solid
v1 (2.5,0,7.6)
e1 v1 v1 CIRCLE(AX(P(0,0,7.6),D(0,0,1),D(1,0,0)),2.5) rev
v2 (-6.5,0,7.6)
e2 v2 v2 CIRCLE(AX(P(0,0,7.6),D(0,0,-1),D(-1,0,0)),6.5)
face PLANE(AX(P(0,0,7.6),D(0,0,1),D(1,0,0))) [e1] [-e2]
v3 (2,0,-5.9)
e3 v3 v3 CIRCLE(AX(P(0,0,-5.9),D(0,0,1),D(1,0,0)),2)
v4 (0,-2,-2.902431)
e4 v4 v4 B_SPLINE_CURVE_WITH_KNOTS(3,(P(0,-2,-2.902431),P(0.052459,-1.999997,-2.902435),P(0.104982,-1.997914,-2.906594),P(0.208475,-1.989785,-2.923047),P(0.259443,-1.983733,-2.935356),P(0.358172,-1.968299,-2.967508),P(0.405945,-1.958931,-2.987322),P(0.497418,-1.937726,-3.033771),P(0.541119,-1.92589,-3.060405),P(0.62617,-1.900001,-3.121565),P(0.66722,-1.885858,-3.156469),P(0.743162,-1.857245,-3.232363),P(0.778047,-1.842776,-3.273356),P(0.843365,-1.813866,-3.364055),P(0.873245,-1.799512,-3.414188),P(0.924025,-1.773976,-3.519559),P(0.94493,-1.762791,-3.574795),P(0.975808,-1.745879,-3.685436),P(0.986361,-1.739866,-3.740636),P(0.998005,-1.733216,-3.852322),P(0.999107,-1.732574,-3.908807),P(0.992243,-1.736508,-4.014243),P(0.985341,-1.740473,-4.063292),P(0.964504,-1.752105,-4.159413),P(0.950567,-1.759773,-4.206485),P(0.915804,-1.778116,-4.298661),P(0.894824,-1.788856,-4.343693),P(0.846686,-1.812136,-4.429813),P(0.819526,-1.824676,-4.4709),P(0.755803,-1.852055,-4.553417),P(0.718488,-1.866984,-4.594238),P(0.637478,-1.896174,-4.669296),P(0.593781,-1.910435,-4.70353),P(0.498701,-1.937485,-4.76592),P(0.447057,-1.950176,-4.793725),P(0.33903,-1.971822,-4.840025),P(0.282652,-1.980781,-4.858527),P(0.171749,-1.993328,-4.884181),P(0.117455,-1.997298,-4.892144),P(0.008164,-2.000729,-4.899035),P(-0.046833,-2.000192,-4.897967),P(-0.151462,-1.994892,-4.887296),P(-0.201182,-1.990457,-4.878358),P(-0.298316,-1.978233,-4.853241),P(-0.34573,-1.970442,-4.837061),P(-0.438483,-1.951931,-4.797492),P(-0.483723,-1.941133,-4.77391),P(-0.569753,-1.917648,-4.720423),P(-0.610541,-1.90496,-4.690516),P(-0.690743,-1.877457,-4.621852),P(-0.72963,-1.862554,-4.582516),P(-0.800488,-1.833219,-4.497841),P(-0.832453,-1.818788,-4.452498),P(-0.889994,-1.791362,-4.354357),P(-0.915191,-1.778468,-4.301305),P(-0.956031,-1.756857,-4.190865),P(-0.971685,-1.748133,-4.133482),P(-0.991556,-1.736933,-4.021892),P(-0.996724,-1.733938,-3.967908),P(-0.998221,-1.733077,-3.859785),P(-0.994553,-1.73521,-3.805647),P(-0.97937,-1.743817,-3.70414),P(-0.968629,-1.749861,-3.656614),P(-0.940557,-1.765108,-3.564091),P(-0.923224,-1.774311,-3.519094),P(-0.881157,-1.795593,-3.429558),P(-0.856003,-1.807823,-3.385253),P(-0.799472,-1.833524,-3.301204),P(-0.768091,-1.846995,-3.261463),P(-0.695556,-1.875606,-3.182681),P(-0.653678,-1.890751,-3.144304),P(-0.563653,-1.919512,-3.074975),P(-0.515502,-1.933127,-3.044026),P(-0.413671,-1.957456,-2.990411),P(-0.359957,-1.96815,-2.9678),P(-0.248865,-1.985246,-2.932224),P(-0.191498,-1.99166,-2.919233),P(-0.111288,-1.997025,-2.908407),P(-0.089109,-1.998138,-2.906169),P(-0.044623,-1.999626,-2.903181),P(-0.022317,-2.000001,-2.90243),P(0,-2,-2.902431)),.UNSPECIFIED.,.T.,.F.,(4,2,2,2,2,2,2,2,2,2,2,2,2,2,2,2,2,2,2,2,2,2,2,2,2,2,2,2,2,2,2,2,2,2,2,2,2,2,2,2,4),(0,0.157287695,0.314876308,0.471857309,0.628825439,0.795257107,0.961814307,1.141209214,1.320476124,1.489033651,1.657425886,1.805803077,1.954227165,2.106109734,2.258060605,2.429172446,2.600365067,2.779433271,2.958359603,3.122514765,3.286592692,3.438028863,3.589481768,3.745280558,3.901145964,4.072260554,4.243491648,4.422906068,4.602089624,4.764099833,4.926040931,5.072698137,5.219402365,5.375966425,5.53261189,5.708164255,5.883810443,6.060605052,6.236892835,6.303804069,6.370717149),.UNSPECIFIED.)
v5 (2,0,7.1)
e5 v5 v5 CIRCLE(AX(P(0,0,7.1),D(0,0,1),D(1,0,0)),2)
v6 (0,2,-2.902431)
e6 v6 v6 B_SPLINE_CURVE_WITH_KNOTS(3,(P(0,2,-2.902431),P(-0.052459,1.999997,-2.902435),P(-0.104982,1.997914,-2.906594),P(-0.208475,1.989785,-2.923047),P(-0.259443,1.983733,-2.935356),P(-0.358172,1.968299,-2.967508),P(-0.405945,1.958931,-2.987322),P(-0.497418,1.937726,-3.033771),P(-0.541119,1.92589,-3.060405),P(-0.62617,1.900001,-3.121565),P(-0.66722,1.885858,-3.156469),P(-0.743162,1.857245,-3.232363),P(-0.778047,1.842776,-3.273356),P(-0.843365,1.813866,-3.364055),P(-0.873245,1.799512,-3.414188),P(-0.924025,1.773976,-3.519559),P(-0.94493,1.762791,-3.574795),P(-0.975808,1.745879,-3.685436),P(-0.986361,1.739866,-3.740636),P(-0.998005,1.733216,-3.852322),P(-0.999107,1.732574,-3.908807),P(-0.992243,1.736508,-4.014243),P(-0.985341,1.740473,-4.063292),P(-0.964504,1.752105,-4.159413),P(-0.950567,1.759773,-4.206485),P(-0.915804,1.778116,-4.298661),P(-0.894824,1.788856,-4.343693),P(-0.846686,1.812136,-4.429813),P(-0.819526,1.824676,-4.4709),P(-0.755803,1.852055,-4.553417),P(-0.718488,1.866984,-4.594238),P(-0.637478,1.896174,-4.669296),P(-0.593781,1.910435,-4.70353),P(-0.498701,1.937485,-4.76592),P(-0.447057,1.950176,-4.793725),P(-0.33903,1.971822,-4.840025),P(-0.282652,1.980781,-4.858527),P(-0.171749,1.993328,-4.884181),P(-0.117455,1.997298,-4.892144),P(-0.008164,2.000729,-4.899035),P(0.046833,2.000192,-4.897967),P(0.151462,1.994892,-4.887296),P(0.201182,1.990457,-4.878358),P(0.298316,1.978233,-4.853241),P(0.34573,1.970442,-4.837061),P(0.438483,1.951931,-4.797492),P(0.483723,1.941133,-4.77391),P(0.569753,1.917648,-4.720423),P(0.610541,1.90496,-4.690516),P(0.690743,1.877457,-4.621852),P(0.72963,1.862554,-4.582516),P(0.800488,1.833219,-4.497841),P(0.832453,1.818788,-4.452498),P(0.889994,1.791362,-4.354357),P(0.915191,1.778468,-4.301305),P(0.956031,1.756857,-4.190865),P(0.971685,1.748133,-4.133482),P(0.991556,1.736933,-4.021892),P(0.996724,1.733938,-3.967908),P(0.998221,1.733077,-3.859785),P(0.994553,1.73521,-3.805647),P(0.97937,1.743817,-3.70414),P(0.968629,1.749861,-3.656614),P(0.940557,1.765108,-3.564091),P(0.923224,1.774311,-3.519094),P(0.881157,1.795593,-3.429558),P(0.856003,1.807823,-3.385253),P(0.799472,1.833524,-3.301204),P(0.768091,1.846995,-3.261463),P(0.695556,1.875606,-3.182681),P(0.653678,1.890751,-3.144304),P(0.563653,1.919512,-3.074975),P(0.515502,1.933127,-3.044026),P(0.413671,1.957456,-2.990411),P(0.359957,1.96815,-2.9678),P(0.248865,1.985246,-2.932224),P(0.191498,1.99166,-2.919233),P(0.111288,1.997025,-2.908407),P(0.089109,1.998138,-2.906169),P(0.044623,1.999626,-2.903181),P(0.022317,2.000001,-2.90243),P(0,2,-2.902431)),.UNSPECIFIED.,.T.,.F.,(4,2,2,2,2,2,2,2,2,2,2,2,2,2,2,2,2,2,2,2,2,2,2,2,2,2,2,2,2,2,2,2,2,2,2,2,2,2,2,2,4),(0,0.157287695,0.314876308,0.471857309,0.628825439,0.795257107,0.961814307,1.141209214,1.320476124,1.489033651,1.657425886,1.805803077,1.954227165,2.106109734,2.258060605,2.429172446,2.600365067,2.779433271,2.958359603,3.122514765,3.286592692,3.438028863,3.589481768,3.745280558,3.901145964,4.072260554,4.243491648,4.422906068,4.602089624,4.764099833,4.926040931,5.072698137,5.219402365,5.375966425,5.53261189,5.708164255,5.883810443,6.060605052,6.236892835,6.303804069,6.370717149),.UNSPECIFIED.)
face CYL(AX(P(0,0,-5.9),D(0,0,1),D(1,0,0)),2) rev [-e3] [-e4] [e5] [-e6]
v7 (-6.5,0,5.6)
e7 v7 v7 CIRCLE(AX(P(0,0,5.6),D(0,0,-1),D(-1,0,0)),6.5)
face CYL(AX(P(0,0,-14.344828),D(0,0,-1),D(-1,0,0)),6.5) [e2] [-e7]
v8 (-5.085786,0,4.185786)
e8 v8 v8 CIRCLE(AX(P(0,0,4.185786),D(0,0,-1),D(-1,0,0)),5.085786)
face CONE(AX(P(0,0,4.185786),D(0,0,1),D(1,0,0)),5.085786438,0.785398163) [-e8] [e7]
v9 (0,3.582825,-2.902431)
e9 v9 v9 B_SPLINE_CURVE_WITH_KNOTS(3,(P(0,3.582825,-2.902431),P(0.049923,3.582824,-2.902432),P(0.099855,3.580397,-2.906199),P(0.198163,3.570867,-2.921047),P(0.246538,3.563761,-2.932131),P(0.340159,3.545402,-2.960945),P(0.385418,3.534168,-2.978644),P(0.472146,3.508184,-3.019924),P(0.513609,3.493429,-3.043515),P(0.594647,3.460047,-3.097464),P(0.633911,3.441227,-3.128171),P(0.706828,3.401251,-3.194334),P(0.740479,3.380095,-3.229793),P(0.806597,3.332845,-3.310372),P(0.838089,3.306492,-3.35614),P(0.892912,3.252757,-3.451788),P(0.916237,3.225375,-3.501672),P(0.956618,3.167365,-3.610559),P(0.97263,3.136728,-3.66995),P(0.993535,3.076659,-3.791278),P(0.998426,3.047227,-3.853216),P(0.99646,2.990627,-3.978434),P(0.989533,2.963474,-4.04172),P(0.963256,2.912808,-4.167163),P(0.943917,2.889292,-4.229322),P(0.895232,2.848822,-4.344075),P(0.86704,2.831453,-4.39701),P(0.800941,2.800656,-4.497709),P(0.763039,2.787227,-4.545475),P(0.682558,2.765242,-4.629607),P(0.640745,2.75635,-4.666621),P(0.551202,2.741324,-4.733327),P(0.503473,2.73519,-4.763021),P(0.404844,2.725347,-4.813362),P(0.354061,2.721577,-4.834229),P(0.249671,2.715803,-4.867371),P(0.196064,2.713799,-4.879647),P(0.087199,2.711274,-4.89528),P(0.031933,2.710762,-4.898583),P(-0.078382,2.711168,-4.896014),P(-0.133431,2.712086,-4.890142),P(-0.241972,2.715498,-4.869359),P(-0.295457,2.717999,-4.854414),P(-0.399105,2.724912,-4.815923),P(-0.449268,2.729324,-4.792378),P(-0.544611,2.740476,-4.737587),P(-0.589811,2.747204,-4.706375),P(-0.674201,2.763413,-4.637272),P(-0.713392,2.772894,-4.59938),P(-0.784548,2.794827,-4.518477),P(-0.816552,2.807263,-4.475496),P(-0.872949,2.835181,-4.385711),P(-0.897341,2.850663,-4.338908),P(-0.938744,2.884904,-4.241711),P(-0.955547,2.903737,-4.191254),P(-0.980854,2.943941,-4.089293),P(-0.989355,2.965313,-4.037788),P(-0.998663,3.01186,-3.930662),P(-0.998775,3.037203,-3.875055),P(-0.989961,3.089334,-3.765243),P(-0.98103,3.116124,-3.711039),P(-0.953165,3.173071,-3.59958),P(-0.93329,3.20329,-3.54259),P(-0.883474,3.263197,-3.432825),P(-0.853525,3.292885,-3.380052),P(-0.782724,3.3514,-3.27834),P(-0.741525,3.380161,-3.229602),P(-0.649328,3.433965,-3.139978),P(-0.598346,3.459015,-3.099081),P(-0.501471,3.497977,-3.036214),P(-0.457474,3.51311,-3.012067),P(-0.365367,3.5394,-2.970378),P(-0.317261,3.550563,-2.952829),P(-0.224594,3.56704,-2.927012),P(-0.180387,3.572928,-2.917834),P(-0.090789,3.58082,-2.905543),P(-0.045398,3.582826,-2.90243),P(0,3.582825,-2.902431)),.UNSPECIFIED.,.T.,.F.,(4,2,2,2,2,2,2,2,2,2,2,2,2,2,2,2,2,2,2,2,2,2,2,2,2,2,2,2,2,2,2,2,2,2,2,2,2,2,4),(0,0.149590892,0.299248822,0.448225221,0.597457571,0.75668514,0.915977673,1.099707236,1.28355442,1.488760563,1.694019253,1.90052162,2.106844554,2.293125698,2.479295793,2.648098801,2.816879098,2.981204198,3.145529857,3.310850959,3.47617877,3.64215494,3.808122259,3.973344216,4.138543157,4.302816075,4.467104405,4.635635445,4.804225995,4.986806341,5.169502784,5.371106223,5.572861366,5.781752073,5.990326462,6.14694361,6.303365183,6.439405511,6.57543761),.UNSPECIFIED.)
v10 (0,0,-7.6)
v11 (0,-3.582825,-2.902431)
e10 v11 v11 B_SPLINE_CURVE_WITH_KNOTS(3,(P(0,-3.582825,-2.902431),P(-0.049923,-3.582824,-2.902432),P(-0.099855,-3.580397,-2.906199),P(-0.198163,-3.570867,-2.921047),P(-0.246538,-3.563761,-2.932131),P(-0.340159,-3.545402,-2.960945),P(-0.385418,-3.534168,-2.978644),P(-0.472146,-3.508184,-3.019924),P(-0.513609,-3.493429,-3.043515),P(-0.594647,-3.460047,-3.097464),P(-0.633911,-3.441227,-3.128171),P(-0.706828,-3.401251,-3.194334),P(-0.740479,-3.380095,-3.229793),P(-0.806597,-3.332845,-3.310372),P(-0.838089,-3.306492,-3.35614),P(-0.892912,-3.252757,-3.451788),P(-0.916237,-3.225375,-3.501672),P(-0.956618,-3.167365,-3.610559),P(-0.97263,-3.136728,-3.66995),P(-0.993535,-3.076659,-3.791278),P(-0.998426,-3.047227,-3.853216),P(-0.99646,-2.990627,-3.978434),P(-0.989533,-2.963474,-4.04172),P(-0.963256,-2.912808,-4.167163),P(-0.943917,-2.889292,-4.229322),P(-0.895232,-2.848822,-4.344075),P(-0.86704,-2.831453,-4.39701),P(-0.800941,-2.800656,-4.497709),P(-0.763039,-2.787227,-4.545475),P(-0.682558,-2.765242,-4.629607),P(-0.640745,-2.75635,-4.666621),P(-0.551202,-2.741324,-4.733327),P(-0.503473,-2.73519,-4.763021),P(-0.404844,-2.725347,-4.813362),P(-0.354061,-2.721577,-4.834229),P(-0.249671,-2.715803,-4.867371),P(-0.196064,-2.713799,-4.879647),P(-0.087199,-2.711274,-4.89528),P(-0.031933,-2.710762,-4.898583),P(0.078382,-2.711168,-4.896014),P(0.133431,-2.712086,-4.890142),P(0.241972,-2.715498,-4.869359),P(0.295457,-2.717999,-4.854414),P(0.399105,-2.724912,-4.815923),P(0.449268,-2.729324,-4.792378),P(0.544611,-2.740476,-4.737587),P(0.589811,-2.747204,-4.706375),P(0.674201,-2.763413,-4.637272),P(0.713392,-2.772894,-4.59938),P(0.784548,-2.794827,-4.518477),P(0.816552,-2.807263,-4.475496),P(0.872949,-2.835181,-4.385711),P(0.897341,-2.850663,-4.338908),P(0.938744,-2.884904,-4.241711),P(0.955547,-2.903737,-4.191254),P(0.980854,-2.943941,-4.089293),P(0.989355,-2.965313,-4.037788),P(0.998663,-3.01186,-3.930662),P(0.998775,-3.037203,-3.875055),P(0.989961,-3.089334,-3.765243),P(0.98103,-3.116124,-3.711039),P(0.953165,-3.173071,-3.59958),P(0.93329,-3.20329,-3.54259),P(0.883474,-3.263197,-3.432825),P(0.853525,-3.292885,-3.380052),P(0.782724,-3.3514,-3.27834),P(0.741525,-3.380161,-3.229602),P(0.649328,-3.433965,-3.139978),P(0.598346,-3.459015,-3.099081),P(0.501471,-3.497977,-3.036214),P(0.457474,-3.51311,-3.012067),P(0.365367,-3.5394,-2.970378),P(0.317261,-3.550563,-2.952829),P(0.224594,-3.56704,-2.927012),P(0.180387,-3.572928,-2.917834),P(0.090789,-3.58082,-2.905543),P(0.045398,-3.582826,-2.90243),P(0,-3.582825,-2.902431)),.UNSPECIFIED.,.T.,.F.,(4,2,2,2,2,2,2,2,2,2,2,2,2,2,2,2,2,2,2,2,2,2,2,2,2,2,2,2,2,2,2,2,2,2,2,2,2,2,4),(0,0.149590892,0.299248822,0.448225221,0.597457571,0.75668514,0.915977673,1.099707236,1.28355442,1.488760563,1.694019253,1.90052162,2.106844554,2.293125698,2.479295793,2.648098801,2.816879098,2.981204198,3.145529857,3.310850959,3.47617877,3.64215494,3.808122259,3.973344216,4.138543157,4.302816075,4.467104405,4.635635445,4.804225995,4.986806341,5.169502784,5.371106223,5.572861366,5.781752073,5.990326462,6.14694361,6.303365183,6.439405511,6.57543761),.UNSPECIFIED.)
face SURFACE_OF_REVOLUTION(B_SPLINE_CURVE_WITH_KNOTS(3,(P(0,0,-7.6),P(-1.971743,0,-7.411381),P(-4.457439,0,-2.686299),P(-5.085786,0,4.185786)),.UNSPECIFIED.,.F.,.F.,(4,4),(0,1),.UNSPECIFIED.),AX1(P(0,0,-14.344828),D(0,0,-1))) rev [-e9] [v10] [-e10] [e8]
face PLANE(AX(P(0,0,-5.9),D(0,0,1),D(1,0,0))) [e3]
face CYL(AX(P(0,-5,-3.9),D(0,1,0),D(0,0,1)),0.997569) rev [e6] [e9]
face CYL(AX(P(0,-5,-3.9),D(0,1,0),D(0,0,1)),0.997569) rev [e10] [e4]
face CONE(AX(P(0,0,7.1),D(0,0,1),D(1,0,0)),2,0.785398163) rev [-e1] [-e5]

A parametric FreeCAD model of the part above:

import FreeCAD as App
import Part
import Sketcher
Q = App.Units.Quantity


def edges_at(feature, points):
    """Names of the edges that pass closest to the given points."""
    edges = feature.Shape.Edges
    near = lambda p: min(range(len(edges)), key=lambda i: edges[i].distToShape(Part.Vertex(*p))[0])
    return sorted({f"Edge{near(p) + 1}" for p in points})

doc = App.newDocument("Part")
params = doc.addObject("Spreadsheet::Sheet", "Params")
for row, (alias, value) in enumerate([
    ("sketch1_height", "2 mm"),
    ("sketch1_length", "2 mm"),
    ("revolution_angle", "360 deg"),
    ("pocket1_length", "10 mm"),
    ("sketch3_diameter", "4 mm"),
    ("pocket2_length", "13.5 mm"),
    ("chamfer_size", "0.5 mm"),
], start=1):
    params.set(f"A{row}", alias)
    params.set(f"B{row}", "=" + value)
    params.setAlias(f"B{row}", alias)

body = doc.addObject("PartDesign::Body", "Body")

# Sketch on XZ plane
sketch1 = doc.addObject("Sketcher::SketchObject", "Sketch")
body.addObject(sketch1)
sketch1.AttachmentSupport = (doc.XZ_Plane, [""])
sketch1.MapMode = "FlatFace"
sketch1.addGeometry([
    Part.LineSegment(App.Vector(-6.5, 7.6, 0), App.Vector(0, 7.6, 0)),  # 0
    Part.LineSegment(App.Vector(0, 7.6, 0), App.Vector(0, -7.6, 0)),  # 1
    Part.BSplineCurve([App.Vector(-5.085786, 4.185786, 0), App.Vector(-4.457439, -2.686299, 0), App.Vector(-1.971743, -7.411381, 0), App.Vector(0, -7.6, 0)], [4, 4], [0, 1], False, 3, [1, 1, 1, 1], False),  # 2
    Part.LineSegment(App.Vector(-5.085786, 4.185786, 0), App.Vector(-6.5, 5.6, 0)),  # 3
    Part.LineSegment(App.Vector(-6.5, 5.6, 0), App.Vector(-6.5, 7.6, 0)),  # 4
], False)
sketch1.addConstraint([
    Sketcher.Constraint("Block", 2),
    Sketcher.Constraint("Coincident", 0, 2, 1, 1),
    Sketcher.Constraint("Coincident", 1, 2, 2, 2),
    Sketcher.Constraint("Coincident", 2, 1, 3, 1),
    Sketcher.Constraint("Coincident", 3, 2, 4, 1),
    Sketcher.Constraint("Coincident", 4, 2, 0, 1),
    Sketcher.Constraint("Horizontal", 0),
    Sketcher.Constraint("Vertical", 1),
    Sketcher.Constraint("Vertical", 4),
    Sketcher.Constraint("DistanceY", 4, 1, 4, 2, 2.0),
    Sketcher.Constraint("Angle", 3, Q("135 deg")),
    Sketcher.Constraint("Distance", 3, 2.0),
])
sketch1.setExpression("Constraints[9]", "Params.sketch1_height")
sketch1.setExpression("Constraints[11]", "Params.sketch1_length")
revolution = doc.addObject("PartDesign::Revolution", "Revolution")
body.addObject(revolution)
revolution.Profile = sketch1
revolution.ReferenceAxis = (sketch1, ["V_Axis"])
revolution.setExpression("Angle", "Params.revolution_angle")

# Sketch on XZ plane
sketch2 = doc.addObject("Sketcher::SketchObject", "Sketch001")
body.addObject(sketch2)
sketch2.AttachmentSupport = (doc.XZ_Plane, [""])
sketch2.MapMode = "FlatFace"
sketch2.addGeometry(Part.Circle(App.Vector(0, -3.9, 0), App.Vector(0, 0, 1), 1), False)
sketch2.addConstraint([
    Sketcher.Constraint("PointOnObject", 0, 3, -2),
    Sketcher.Constraint("DistanceY", 0, 3, -1, 1, 3.9),
    Sketcher.Constraint("Diameter", 0, 1.995137),
])
pocket1 = doc.addObject("PartDesign::Pocket", "Pocket")
body.addObject(pocket1)
pocket1.Profile = sketch2
pocket1.setExpression("Length", "Params.pocket1_length")
pocket1.Midplane = True

# Sketch on XY plane
sketch3 = doc.addObject("Sketcher::SketchObject", "Sketch002")
body.addObject(sketch3)
sketch3.AttachmentSupport = (doc.XY_Plane, [""])
sketch3.MapMode = "FlatFace"
sketch3.AttachmentOffset = App.Placement(App.Vector(0, 0, 7.6), App.Rotation())
sketch3.addGeometry(Part.Circle(App.Vector(0, 0, 0), App.Vector(0, 0, 1), 2), False)
sketch3.addConstraint([
    Sketcher.Constraint("Coincident", 0, 3, -1, 1),
    Sketcher.Constraint("Diameter", 0, 4.0),
])
sketch3.setExpression("Constraints[1]", "Params.sketch3_diameter")
pocket2 = doc.addObject("PartDesign::Pocket", "Pocket001")
body.addObject(pocket2)
pocket2.Profile = sketch3
pocket2.setExpression("Length", "Params.pocket2_length")
doc.recompute()

chamfer = doc.addObject("PartDesign::Chamfer", "Chamfer")
body.addObject(chamfer)
chamfer.Base = (pocket2, edges_at(pocket2, [(-2, 0, 7.6)]))
chamfer.setExpression("Size", "Params.chamfer_size")

doc.recompute()
